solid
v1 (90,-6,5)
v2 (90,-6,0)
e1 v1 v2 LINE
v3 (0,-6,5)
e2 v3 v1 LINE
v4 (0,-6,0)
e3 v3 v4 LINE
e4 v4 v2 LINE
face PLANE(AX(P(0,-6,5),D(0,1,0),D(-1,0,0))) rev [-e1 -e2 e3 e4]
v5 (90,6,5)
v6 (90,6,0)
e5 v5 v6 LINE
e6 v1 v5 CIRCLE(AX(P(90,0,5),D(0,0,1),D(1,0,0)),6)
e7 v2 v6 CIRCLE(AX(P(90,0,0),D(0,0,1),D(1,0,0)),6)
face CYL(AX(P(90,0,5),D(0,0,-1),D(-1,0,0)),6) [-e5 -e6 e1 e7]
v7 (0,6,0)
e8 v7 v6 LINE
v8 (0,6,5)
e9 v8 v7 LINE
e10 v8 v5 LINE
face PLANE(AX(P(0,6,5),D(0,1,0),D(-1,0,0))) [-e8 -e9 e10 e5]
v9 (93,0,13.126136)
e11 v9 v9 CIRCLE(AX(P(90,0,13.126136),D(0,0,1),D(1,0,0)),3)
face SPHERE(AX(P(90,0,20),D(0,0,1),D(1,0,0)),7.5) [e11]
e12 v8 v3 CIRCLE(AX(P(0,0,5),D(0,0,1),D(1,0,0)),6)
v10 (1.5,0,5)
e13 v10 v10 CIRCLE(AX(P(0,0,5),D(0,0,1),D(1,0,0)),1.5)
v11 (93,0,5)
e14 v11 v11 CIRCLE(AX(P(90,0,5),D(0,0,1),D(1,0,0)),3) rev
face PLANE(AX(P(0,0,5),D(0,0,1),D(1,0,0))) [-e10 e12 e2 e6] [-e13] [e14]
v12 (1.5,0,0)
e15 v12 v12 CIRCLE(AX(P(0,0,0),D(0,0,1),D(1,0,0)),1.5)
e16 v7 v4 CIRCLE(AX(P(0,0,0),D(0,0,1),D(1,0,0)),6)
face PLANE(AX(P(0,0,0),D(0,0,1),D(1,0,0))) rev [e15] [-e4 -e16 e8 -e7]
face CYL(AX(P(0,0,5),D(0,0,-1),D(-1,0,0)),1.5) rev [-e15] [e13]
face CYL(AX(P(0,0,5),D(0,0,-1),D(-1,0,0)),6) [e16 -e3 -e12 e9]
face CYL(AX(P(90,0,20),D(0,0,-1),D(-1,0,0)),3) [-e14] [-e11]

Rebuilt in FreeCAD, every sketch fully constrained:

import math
import FreeCAD as App
import Part
import Sketcher

V = App.Vector


def edges_at(feature, points):
    """Names of the edges that pass closest to the given points."""
    edges = feature.Shape.Edges
    near = lambda p: min(range(len(edges)), key=lambda i: edges[i].distToShape(Part.Vertex(*p))[0])
    return sorted({f"Edge{near(p) + 1}" for p in points})

doc = App.newDocument("Part")
params = doc.addObject("Spreadsheet::Sheet", "Params")
for row, (alias, value) in enumerate([
    ("sketch1_diameter", "3 mm"),
    ("sketch1_radius", "6 mm"),
    ("sketch1_width", "90 mm"),
    ("pad1_length", "5 mm"),
    ("fillet_radius", "1 mm"),
    ("sketch2_diameter", "6 mm"),
    ("pad2_length", "20 mm"),
    ("sketch3_radius", "7.5 mm"),
    ("revolution_angle", "360 deg"),
], start=1):
    params.set(f"A{row}", alias)
    params.set(f"B{row}", "=" + value)
    params.setAlias(f"B{row}", alias)

body = doc.addObject("PartDesign::Body", "Body")

# Sketch on XY plane
sketch1 = body.newObject("Sketcher::SketchObject", "Sketch")
sketch1.AttachmentSupport = (doc.getObject("XY_Plane"), [""])
sketch1.MapMode = "FlatFace"
sketch1.addGeometry([
    Part.ArcOfCircle(Part.Circle(V(0, 0, 0), V(0, 0, 1), 6), math.radians(90), math.radians(270)),  # 0
    Part.LineSegment(V(0, -6, 0), V(90, -6, 0)),  # 1
    Part.ArcOfCircle(Part.Circle(V(90, 0, 0), V(0, 0, 1), 6), math.radians(-90), math.radians(90)),  # 2
    Part.LineSegment(V(90, 6, 0), V(0, 6, 0)),  # 3
    Part.Circle(V(0, 0, 0), V(0, 0, 1), 1.5),  # 4
    Part.Circle(V(90, 0, 0), V(0, 0, 1), 1.5),  # 5
], False)
sketch1.addConstraint([
    Sketcher.Constraint("Tangent", 0, 2, 1, 1),
    Sketcher.Constraint("Tangent", 1, 2, 2, 1),
    Sketcher.Constraint("Tangent", 2, 2, 3, 1),
    Sketcher.Constraint("Tangent", 3, 2, 0, 1),
    Sketcher.Constraint("Horizontal", 1),
    Sketcher.Constraint("Horizontal", 3),
    Sketcher.Constraint("Coincident", 0, 3, -1, 1),
    Sketcher.Constraint("Coincident", 4, 3, -1, 1),
    Sketcher.Constraint("Coincident", 5, 3, 2, 3),
    Sketcher.Constraint("Equal", 4, 5),
    Sketcher.Constraint("Diameter", 4, 3.0),
    Sketcher.Constraint("Radius", 0, 6.0),
    Sketcher.Constraint("DistanceX", 1, 1, 1, 2, 90.0),
])
sketch1.setExpression("Constraints[10]", "Params.sketch1_diameter")
sketch1.setExpression("Constraints[11]", "Params.sketch1_radius")
sketch1.setExpression("Constraints[12]", "Params.sketch1_width")
pad1 = body.newObject("PartDesign::Pad", "Pad")
pad1.Profile = sketch1
pad1.setExpression("Length", "Params.pad1_length")
doc.recompute()

fillet = body.newObject("PartDesign::Fillet", "Fillet")
fillet.Base = (pad1, edges_at(pad1, [(88.5, 0, 0)]))
fillet.setExpression("Radius", "Params.fillet_radius")

# Sketch on XY plane
sketch2 = body.newObject("Sketcher::SketchObject", "Sketch001")
sketch2.AttachmentSupport = (doc.getObject("XY_Plane"), [""])
sketch2.MapMode = "FlatFace"
sketch2.addGeometry(Part.Circle(V(90, 0, 0), V(0, 0, 1), 3), False)
sketch2.addConstraint([
    Sketcher.Constraint("PointOnObject", 0, 3, -1),
    Sketcher.Constraint("Diameter", 0, 6.0),
    Sketcher.Constraint("DistanceX", -1, 1, 0, 3, 90.0),
])
sketch2.setExpression("Constraints[1]", "Params.sketch2_diameter")
pad2 = body.newObject("PartDesign::Pad", "Pad001")
pad2.Profile = sketch2
pad2.setExpression("Length", "Params.pad2_length")

# Sketch on XY plane
sketch3 = body.newObject("Sketcher::SketchObject", "Sketch002")
sketch3.AttachmentSupport = (doc.getObject("XY_Plane"), [""])
sketch3.MapMode = "FlatFace"
sketch3.AttachmentOffset = App.Placement(V(0, 0, 20), App.Rotation())
sketch3.addGeometry([
    Part.LineSegment(V(82, 0, 0), V(98, 0, 0)),
    Part.ArcOfCircle(Part.Circle(V(90, 0, 0), V(0, 0, 1), 8), math.radians(0), math.radians(180)),
], False)
sketch3.addConstraint([
    Sketcher.Constraint("Coincident", 0, 1, 1, 2),
    Sketcher.Constraint("Coincident", 1, 1, 0, 2),
    Sketcher.Constraint("Horizontal", 0),
    Sketcher.Constraint("PointOnObject", 1, 3, -1),
    Sketcher.Constraint("PointOnObject", 0, 1, -1),
    Sketcher.Constraint("Radius", 1, 7.5),
    Sketcher.Constraint("DistanceX", -1, 1, 1, 3, 90.0),
])
sketch3.setExpression("Constraints[5]", "Params.sketch3_radius")
revolution = body.newObject("PartDesign::Revolution", "Revolution")
revolution.Profile = sketch3
revolution.ReferenceAxis = (sketch3, ["H_Axis"])
revolution.setExpression("Angle", "Params.revolution_angle")

doc.recompute()
